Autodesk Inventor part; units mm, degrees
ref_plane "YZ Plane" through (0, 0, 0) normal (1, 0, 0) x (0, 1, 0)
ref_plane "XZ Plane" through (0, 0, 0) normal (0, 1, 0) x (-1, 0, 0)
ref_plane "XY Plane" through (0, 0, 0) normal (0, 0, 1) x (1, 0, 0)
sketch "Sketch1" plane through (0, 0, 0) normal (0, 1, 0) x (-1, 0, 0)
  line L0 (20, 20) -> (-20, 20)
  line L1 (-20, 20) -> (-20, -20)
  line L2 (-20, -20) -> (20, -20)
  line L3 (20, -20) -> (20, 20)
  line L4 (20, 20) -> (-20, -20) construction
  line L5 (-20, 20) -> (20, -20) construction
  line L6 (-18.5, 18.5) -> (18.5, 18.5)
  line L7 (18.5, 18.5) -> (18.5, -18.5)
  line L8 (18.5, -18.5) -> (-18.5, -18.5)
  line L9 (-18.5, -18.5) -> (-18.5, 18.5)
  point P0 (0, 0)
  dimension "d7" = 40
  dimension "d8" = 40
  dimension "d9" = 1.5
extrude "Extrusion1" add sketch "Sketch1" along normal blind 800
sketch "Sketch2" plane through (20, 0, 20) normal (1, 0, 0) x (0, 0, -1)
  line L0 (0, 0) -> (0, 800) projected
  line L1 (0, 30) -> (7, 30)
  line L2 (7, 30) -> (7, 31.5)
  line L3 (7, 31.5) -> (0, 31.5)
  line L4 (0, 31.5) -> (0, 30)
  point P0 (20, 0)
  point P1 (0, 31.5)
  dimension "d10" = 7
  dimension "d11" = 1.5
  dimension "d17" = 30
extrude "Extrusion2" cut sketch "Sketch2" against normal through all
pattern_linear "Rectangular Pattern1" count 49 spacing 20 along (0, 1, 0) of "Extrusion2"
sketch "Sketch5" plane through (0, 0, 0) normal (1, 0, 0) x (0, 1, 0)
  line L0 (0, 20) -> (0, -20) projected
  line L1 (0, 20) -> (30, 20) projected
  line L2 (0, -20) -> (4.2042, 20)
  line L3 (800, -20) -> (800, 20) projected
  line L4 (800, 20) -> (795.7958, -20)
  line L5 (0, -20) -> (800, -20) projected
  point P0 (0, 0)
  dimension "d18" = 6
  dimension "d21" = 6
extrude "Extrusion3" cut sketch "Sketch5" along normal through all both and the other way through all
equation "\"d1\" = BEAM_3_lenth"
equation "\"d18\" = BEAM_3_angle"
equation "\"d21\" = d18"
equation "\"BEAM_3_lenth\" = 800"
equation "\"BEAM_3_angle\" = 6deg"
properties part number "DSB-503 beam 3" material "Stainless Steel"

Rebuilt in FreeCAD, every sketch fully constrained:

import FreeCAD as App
import Part
import Sketcher
from FreeCAD import Vector
Q = App.Units.Quantity


def add_polygon(sketch, points):
    """Adds a closed chain of lines whose ends are joined by coincident constraints."""
    first, n = sketch.GeometryCount, len(points)
    for a, b in zip(points, points[1:] + points[:1]):
        sketch.addGeometry(Part.LineSegment(App.Vector(*a, 0), App.Vector(*b, 0)), False)
    for i in range(n):
        sketch.addConstraint(Sketcher.Constraint("Coincident", first + i, 2, first + (i + 1) % n, 1))

doc = App.newDocument("Part")
body = doc.addObject("PartDesign::Body", "Body")

# Sketch on XZ plane
sketch1 = doc.addObject("Sketcher::SketchObject", "Sketch")
body.addObject(sketch1)
sketch1.AttachmentSupport = (doc.XZ_Plane, [""])
sketch1.MapMode = "FlatFace"
add_polygon(sketch1, [(-20, -20), (-20, 20), (20, 20), (20, -20)])  # lines 0-3
add_polygon(sketch1, [(18.5, -18.5), (18.5, 18.5), (-18.5, 18.5), (-18.5, -18.5)])  # lines 4-7
sketch1.addConstraint([
    Sketcher.Constraint("Vertical", 0),
    Sketcher.Constraint("Horizontal", 1),
    Sketcher.Constraint("Vertical", 2),
    Sketcher.Constraint("Horizontal", 3),
    Sketcher.Constraint("Vertical", 4),
    Sketcher.Constraint("Horizontal", 5),
    Sketcher.Constraint("Vertical", 6),
    Sketcher.Constraint("Horizontal", 7),
    Sketcher.Constraint("Symmetric", 0, 2, 2, 2, -1, 1),
    Sketcher.Constraint("Symmetric", 4, 2, 6, 2, -1, 1),
    Sketcher.Constraint("Equal", 3, 0),
    Sketcher.Constraint("Equal", 7, 4),
    Sketcher.Constraint("DistanceX", 1, 1, 1, 2, Q("40 mm")),
    Sketcher.Constraint("DistanceX", 4, 2, 1, 2, Q("1.5 mm")),
])
pad1 = doc.addObject("PartDesign::Pad", "Pad")
body.addObject(pad1)
pad1.Profile = sketch1
pad1.Length = 800
pad1.Reversed = True

# Sketch on YZ plane
sketch2 = doc.addObject("Sketcher::SketchObject", "Sketch001")
body.addObject(sketch2)
sketch2.AttachmentSupport = (doc.YZ_Plane, [""])
sketch2.MapMode = "FlatFace"
sketch2.AttachmentOffset = App.Placement(Vector(0, 0, 20), App.Rotation())
add_polygon(sketch2, [(31.5, 20), (30, 20), (30, 13), (31.5, 13)])  # lines 0-3
sketch2.addConstraint([
    Sketcher.Constraint("Horizontal", 0),
    Sketcher.Constraint("Vertical", 1),
    Sketcher.Constraint("Horizontal", 2),
    Sketcher.Constraint("Vertical", 3),
    Sketcher.Constraint("DistanceY", 1, 2, 1, 1, Q("7 mm")),
    Sketcher.Constraint("DistanceX", 0, 2, 0, 1, Q("1.5 mm")),
    Sketcher.Constraint("DistanceX", -1, 1, 0, 2, Q("30 mm")),
    Sketcher.Constraint("DistanceY", -1, 1, 0, 2, Q("20 mm")),
])
pocket1 = doc.addObject("PartDesign::Pocket", "Pocket")
body.addObject(pocket1)
pocket1.Profile = sketch2
pocket1.Type = "ThroughAll"
doc.recompute()

linearpattern = doc.addObject("PartDesign::LinearPattern", "LinearPattern")
body.addObject(linearpattern)
linearpattern.Originals = [pocket1]
linearpattern.Direction = (doc.Y_Axis, [""])
linearpattern.Mode = "offset"
linearpattern.Offset = 20
linearpattern.Occurrences = 49
body.Tip = linearpattern

# Sketch on YZ plane
sketch3 = doc.addObject("Sketcher::SketchObject", "Sketch002")
body.addObject(sketch3)
sketch3.AttachmentSupport = (doc.YZ_Plane, [""])
sketch3.MapMode = "FlatFace"
add_polygon(sketch3, [(4.2042, 20), (0, 20), (0, -20)])  # lines 0-2
add_polygon(sketch3, [(800, 20), (795.7958, -20), (800, -20)])  # lines 3-5
sketch3.addConstraint([
    Sketcher.Constraint("Horizontal", 0),
    Sketcher.Constraint("Vertical", 1),
    Sketcher.Constraint("Horizontal", 4),
    Sketcher.Constraint("Vertical", 5),
    Sketcher.Constraint("Symmetric", 0, 2, 1, 2, -1, 1),
    Sketcher.Constraint("Parallel", 2, 3),
    Sketcher.Constraint("Horizontal", 1, 2, 3, 2),
    Sketcher.Constraint("Horizontal", 2, 2, 5, 2),
    Sketcher.Constraint("DistanceY", 1, 2, 1, 1, Q("40 mm")),
    Sketcher.Constraint("Angle", 2, Q("84 deg")),
    Sketcher.Constraint("DistanceX", -1, 1, 4, 2, Q("800 mm")),
])
pocket2 = doc.addObject("PartDesign::Pocket", "Pocket001")
body.addObject(pocket2)
pocket2.Profile = sketch3
pocket2.Type = "ThroughAll"
pocket2.Midplane = True

doc.recompute()
